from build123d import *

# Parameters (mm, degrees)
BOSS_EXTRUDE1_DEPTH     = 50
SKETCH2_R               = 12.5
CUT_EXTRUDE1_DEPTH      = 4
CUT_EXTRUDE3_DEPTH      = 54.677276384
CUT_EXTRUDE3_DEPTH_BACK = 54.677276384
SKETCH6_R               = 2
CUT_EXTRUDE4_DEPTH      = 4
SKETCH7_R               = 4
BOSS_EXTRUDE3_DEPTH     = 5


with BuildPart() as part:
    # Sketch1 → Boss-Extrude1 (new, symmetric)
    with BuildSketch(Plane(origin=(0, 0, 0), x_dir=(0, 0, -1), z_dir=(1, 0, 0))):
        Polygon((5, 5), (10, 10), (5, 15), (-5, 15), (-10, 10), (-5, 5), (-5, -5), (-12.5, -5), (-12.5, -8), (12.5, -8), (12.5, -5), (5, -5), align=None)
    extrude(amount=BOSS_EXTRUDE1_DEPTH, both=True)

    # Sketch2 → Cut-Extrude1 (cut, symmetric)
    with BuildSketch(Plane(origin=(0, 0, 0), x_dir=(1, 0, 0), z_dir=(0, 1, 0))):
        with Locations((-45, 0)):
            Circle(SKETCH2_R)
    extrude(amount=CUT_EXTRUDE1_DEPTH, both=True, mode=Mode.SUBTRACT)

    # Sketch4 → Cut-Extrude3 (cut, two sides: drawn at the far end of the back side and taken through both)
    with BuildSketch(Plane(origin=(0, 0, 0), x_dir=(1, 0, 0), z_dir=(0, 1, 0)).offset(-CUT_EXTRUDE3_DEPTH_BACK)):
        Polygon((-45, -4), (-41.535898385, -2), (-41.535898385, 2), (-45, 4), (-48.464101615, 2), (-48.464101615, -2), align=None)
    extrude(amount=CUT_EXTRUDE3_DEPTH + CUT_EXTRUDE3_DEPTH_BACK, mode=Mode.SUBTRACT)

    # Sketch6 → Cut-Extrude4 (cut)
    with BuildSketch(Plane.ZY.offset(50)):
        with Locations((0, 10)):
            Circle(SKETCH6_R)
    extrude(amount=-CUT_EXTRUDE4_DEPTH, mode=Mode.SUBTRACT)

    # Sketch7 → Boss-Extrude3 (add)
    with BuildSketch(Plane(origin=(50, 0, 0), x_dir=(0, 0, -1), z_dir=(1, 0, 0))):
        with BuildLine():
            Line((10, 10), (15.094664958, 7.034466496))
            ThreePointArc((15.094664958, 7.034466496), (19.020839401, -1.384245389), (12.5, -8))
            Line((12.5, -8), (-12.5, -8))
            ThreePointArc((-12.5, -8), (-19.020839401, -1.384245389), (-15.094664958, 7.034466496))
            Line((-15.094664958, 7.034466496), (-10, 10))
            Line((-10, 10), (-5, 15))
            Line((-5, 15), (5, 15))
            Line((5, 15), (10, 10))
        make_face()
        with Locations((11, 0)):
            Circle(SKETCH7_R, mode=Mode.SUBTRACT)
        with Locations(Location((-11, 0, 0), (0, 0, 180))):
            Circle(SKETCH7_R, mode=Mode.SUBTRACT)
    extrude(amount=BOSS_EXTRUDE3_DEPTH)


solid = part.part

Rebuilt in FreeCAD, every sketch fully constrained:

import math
import FreeCAD as App
import Part
import Sketcher

V = App.Vector
Q = App.Units.Quantity

doc = App.newDocument("Part")
body = doc.addObject("PartDesign::Body", "Body")

# Sketch on YZ plane
sketch1 = body.newObject("Sketcher::SketchObject", "Sketch")
sketch1.AttachmentSupport = (doc.getObject("YZ_Plane"), [""])
sketch1.MapMode = "FlatFace"
sketch1.addGeometry([
    Part.LineSegment(V(5, -5, 0), V(10, -10, 0)),  # 0
    Part.LineSegment(V(10, -10, 0), V(15, -5, 0)),  # 1
    Part.LineSegment(V(15, -5, 0), V(15, 5, 0)),  # 2
    Part.LineSegment(V(15, 5, 0), V(10, 10, 0)),  # 3
    Part.LineSegment(V(10, 10, 0), V(5, 5, 0)),  # 4
    Part.LineSegment(V(5, 5, 0), V(-5, 5, 0)),  # 5
    Part.LineSegment(V(-5, 5, 0), V(-5, 12.5, 0)),  # 6
    Part.LineSegment(V(-5, 12.5, 0), V(-8, 12.5, 0)),  # 7
    Part.LineSegment(V(-8, 12.5, 0), V(-8, -12.5, 0)),  # 8
    Part.LineSegment(V(-8, -12.5, 0), V(-5, -12.5, 0)),  # 9
    Part.LineSegment(V(-5, -12.5, 0), V(-5, -5, 0)),  # 10
    Part.LineSegment(V(-5, -5, 0), V(5, -5, 0)),  # 11
], False)
sketch1.addConstraint([
    Sketcher.Constraint("Coincident", 0, 2, 1, 1),
    Sketcher.Constraint("Coincident", 1, 2, 2, 1),
    Sketcher.Constraint("Coincident", 2, 2, 3, 1),
    Sketcher.Constraint("Coincident", 3, 2, 4, 1),
    Sketcher.Constraint("Coincident", 4, 2, 5, 1),
    Sketcher.Constraint("Coincident", 5, 2, 6, 1),
    Sketcher.Constraint("Coincident", 6, 2, 7, 1),
    Sketcher.Constraint("Coincident", 7, 2, 8, 1),
    Sketcher.Constraint("Coincident", 8, 2, 9, 1),
    Sketcher.Constraint("Coincident", 9, 2, 10, 1),
    Sketcher.Constraint("Coincident", 10, 2, 11, 1),
    Sketcher.Constraint("Coincident", 11, 2, 0, 1),
    Sketcher.Constraint("Vertical", 2),
    Sketcher.Constraint("Horizontal", 5),
    Sketcher.Constraint("Vertical", 6),
    Sketcher.Constraint("Horizontal", 7),
    Sketcher.Constraint("Vertical", 8),
    Sketcher.Constraint("Horizontal", 9),
    Sketcher.Constraint("Vertical", 10),
    Sketcher.Constraint("Horizontal", 11),
    Sketcher.Constraint("Symmetric", 4, 2, 10, 2, -1, 1),
    Sketcher.Constraint("Symmetric", 0, 2, 3, 2, -1),
    Sketcher.Constraint("Symmetric", 6, 2, 9, 2, -1),
    Sketcher.Constraint("Perpendicular", 0, 1),
    Sketcher.Constraint("Perpendicular", 1, 3),
    Sketcher.Constraint("Perpendicular", 3, 4),
    Sketcher.Constraint("Horizontal", 2, 2, 4, 2),
    Sketcher.Constraint("Horizontal", 1, 2, 10, 2),
    Sketcher.Constraint("Equal", 11, 2),
    Sketcher.Constraint("DistanceX", 5, 2, 5, 1, Q("10 mm")),
    Sketcher.Constraint("DistanceX", 7, 2, 7, 1, Q("3 mm")),
    Sketcher.Constraint("DistanceY", 8, 2, 8, 1, Q("25 mm")),
    Sketcher.Constraint("DistanceX", -1, 1, 0, 2, Q("10 mm")),
])
pad1 = body.newObject("PartDesign::Pad", "Pad")
pad1.Profile = sketch1
pad1.Length = 100
pad1.Midplane = True

# Sketch on XZ plane
sketch2 = body.newObject("Sketcher::SketchObject", "Sketch001")
sketch2.AttachmentSupport = (doc.getObject("XZ_Plane"), [""])
sketch2.MapMode = "FlatFace"
sketch2.addGeometry(Part.Circle(V(-45, 0, 0), V(0, 0, 1), 12.5), False)
sketch2.addConstraint([
    Sketcher.Constraint("PointOnObject", 0, 3, -1),
    Sketcher.Constraint("Diameter", 0, Q("25 mm")),
    Sketcher.Constraint("DistanceX", 0, 3, -1, 1, Q("45 mm")),
])
pocket1 = body.newObject("PartDesign::Pocket", "Pocket")
pocket1.Profile = sketch2
pocket1.Length = 8
pocket1.Midplane = True

# Sketch on XZ plane
sketch3 = body.newObject("Sketcher::SketchObject", "Sketch002")
sketch3.AttachmentSupport = (doc.getObject("XZ_Plane"), [""])
sketch3.MapMode = "FlatFace"
sketch3.addGeometry([
    Part.LineSegment(V(-45, 4, 0), V(-41.535898, 2, 0)),  # 0
    Part.LineSegment(V(-41.535898, 2, 0), V(-41.535898, -2, 0)),  # 1
    Part.LineSegment(V(-41.535898, -2, 0), V(-45, -4, 0)),  # 2
    Part.LineSegment(V(-45, -4, 0), V(-48.464102, -2, 0)),  # 3
    Part.LineSegment(V(-48.464102, -2, 0), V(-48.464102, 2, 0)),  # 4
    Part.LineSegment(V(-48.464102, 2, 0), V(-45, 4, 0)),  # 5
], False)
sketch3.addConstraint([
    Sketcher.Constraint("Coincident", 0, 2, 1, 1),
    Sketcher.Constraint("Coincident", 1, 2, 2, 1),
    Sketcher.Constraint("Coincident", 2, 2, 3, 1),
    Sketcher.Constraint("Coincident", 3, 2, 4, 1),
    Sketcher.Constraint("Coincident", 4, 2, 5, 1),
    Sketcher.Constraint("Coincident", 5, 2, 0, 1),
    Sketcher.Constraint("Vertical", 1),
    Sketcher.Constraint("Vertical", 4),
    Sketcher.Constraint("Symmetric", 2, 2, 5, 2, -1),
    Sketcher.Constraint("Parallel", 0, 3),
    Sketcher.Constraint("Parallel", 2, 5),
    Sketcher.Constraint("Horizontal", 1, 2, 3, 2),
    Sketcher.Constraint("Horizontal", 0, 2, 4, 2),
    Sketcher.Constraint("DistanceY", 1, 2, 1, 1, Q("4 mm")),
    Sketcher.Constraint("Angle", 0, Q("-30 deg")),
    Sketcher.Constraint("Distance", 0, Q("4 mm")),
    Sketcher.Constraint("DistanceX", 2, 2, -1, 1, Q("45 mm")),
])
pocket2 = body.newObject("PartDesign::Pocket", "Pocket001")
pocket2.Profile = sketch3
pocket2.Type = "ThroughAll"
pocket2.Midplane = True

# Sketch on YZ plane
sketch4 = body.newObject("Sketcher::SketchObject", "Sketch003")
sketch4.AttachmentSupport = (doc.getObject("YZ_Plane"), [""])
sketch4.MapMode = "FlatFace"
sketch4.AttachmentOffset = App.Placement(V(0, 0, -50), App.Rotation())
sketch4.addGeometry(Part.Circle(V(10, 0, 0), V(0, 0, 1), 2), False)
sketch4.addConstraint([
    Sketcher.Constraint("PointOnObject", 0, 3, -1),
    Sketcher.Constraint("Diameter", 0, Q("4 mm")),
    Sketcher.Constraint("DistanceX", -1, 1, 0, 3, Q("10 mm")),
])
pocket3 = body.newObject("PartDesign::Pocket", "Pocket002")
pocket3.Profile = sketch4
pocket3.Length = 4
pocket3.Reversed = True

# Sketch on YZ plane
sketch5 = body.newObject("Sketcher::SketchObject", "Sketch004")
sketch5.AttachmentSupport = (doc.getObject("YZ_Plane"), [""])
sketch5.MapMode = "FlatFace"
sketch5.AttachmentOffset = App.Placement(V(0, 0, 50), App.Rotation())
sketch5.addGeometry([
    Part.LineSegment(V(7.034466, -15.094665, 0), V(10, -10, 0)),  # 0
    Part.LineSegment(V(10, -10, 0), V(15, -5, 0)),  # 1
    Part.LineSegment(V(15, -5, 0), V(15, 5, 0)),  # 2
    Part.LineSegment(V(15, 5, 0), V(10, 10, 0)),  # 3
    Part.LineSegment(V(10, 10, 0), V(7.034466, 15.094665, 0)),  # 4
    Part.ArcOfCircle(Part.Circle(V(0, 11, 0), V(0, 0, 1), 8.13941), math.radians(30.203089), math.radians(169.380345)),  # 5
    Part.LineSegment(V(-8, 12.5, 0), V(-8, -12.5, 0)),  # 6
    Part.ArcOfCircle(Part.Circle(V(0, -11, 0), V(0, 0, 1), 8.13941), math.radians(-169.380345), math.radians(-30.203089)),  # 7
    Part.Circle(V(0, -11, 0), V(0, 0, 1), 4),  # 8
    Part.Circle(V(0, 11, 0), V(0, 0, 1), 4),  # 9
], False)
sketch5.addConstraint([
    Sketcher.Constraint("Coincident", 0, 2, 1, 1),
    Sketcher.Constraint("Coincident", 1, 2, 2, 1),
    Sketcher.Constraint("Coincident", 2, 2, 3, 1),
    Sketcher.Constraint("Coincident", 3, 2, 4, 1),
    Sketcher.Constraint("Tangent", 4, 2, 5, 1),
    Sketcher.Constraint("Coincident", 5, 2, 6, 1),
    Sketcher.Constraint("Coincident", 6, 2, 7, 1),
    Sketcher.Constraint("Tangent", 7, 2, 0, 1),
    Sketcher.Constraint("Vertical", 2),
    Sketcher.Constraint("Vertical", 6),
    Sketcher.Constraint("Coincident", 8, 3, 7, 3),
    Sketcher.Constraint("Coincident", 9, 3, 5, 3),
    Sketcher.Constraint("Equal", 5, 7),
    Sketcher.Constraint("Equal", 8, 9),
    Sketcher.Constraint("Symmetric", 5, 3, 7, 3, -1, 1),
    Sketcher.Constraint("Symmetric", 0, 2, 3, 2, -1),
    Sketcher.Constraint("PointOnObject", 5, 3, -2),
    Sketcher.Constraint("Perpendicular", 1, 3),
    Sketcher.Constraint("Equal", 1, 3),
    Sketcher.Constraint("Diameter", 8, Q("8 mm")),
    Sketcher.Constraint("DistanceY", 2, 1, 2, 2, Q("10 mm")),
    Sketcher.Constraint("DistanceY", 6, 2, 6, 1, Q("25 mm")),
    Sketcher.Constraint("DistanceY", -1, 1, 5, 3, Q("11 mm")),
    Sketcher.Constraint("DistanceX", -1, 1, 0, 2, Q("10 mm")),
    Sketcher.Constraint("DistanceY", 0, 2, -1, 1, Q("10 mm")),
    Sketcher.Constraint("DistanceX", 5, 2, -1, 1, Q("8 mm")),
])
pad2 = body.newObject("PartDesign::Pad", "Pad001")
pad2.Profile = sketch5
pad2.Length = 5

doc.recompute()
